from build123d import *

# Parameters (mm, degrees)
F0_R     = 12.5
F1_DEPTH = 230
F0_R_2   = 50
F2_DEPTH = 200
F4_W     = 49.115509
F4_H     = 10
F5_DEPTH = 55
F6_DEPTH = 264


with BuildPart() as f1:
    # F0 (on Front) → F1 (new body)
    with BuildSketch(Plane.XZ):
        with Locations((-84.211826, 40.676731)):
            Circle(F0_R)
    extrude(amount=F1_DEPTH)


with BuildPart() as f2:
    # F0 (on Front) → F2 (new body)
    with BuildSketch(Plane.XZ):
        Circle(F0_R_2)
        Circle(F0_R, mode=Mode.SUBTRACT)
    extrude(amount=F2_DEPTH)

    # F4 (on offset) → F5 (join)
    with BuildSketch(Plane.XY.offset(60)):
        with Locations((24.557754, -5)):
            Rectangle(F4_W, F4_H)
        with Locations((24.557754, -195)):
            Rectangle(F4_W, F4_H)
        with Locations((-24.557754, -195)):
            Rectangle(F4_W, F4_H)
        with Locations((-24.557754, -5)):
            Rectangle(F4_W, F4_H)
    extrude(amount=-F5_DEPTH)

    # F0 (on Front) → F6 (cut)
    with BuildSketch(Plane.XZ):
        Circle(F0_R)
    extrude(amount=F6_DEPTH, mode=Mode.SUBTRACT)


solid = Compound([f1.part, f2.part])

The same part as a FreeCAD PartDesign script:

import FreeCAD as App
import Part
import Sketcher
from FreeCAD import Vector


def add_polygon(sketch, points):
    """Adds a closed chain of lines whose ends are joined by coincident constraints."""
    first, n = sketch.GeometryCount, len(points)
    for a, b in zip(points, points[1:] + points[:1]):
        sketch.addGeometry(Part.LineSegment(App.Vector(*a, 0), App.Vector(*b, 0)), False)
    for i in range(n):
        sketch.addConstraint(Sketcher.Constraint("Coincident", first + i, 2, first + (i + 1) % n, 1))

doc = App.newDocument("Part")
params = doc.addObject("Spreadsheet::Sheet", "Params")
for row, (alias, value) in enumerate([
    ("sketch1_diameter", "25 mm"),
    ("pad1_length", "230 mm"),
    ("sketch2_diameter", "100 mm"),
    ("sketch2_diameter2", "25 mm"),
    ("pad2_length", "200 mm"),
    ("sketch3_height", "10 mm"),
    ("pad3_length", "55 mm"),
    ("sketch4_diameter", "25 mm"),
    ("pocket1_length", "264 mm"),
], start=1):
    params.set(f"A{row}", alias)
    params.set(f"B{row}", "=" + value)
    params.setAlias(f"B{row}", alias)

body = doc.addObject("PartDesign::Body", "Body")

# Sketch on XZ plane
sketch1 = body.newObject("Sketcher::SketchObject", "Sketch")
sketch1.AttachmentSupport = (doc.getObject("XZ_Plane"), [""])
sketch1.MapMode = "FlatFace"
sketch1.addGeometry(Part.Circle(Vector(-84.211826, 40.676731, 0), Vector(0, 0, 1), 12.5), False)
sketch1.addConstraint([
    Sketcher.Constraint("Diameter", 0, 25.0),
    Sketcher.Constraint("DistanceY", -1, 1, 0, 3, 40.676731),
    Sketcher.Constraint("DistanceX", 0, 3, -1, 1, 84.211826),
])
sketch1.setExpression("Constraints[0]", "Params.sketch1_diameter")
pad1 = body.newObject("PartDesign::Pad", "Pad")
pad1.Profile = sketch1
pad1.setExpression("Length", "Params.pad1_length")
body2 = doc.addObject("PartDesign::Body", "Body001")

# Sketch on XZ plane
sketch2 = body2.newObject("Sketcher::SketchObject", "Sketch001")
sketch2.AttachmentSupport = (doc.getObject("XZ_Plane001"), [""])
sketch2.MapMode = "FlatFace"
sketch2.addGeometry([
    Part.Circle(Vector(0, 0, 0), Vector(0, 0, 1), 50),
    Part.Circle(Vector(0, 0, 0), Vector(0, 0, 1), 12.5),
], False)
sketch2.addConstraint([
    Sketcher.Constraint("Coincident", 0, 3, -1, 1),
    Sketcher.Constraint("Coincident", 1, 3, -1, 1),
    Sketcher.Constraint("Diameter", 0, 100.0),
    Sketcher.Constraint("Diameter", 1, 25.0),
])
sketch2.setExpression("Constraints[2]", "Params.sketch2_diameter")
sketch2.setExpression("Constraints[3]", "Params.sketch2_diameter2")
pad2 = body2.newObject("PartDesign::Pad", "Pad001")
pad2.Profile = sketch2
pad2.setExpression("Length", "Params.pad2_length")

# Sketch on XY plane
sketch3 = body2.newObject("Sketcher::SketchObject", "Sketch002")
sketch3.AttachmentSupport = (doc.getObject("XY_Plane001"), [""])
sketch3.MapMode = "FlatFace"
sketch3.AttachmentOffset = App.Placement(Vector(0, 0, 60), App.Rotation())
add_polygon(sketch3, [(-49.115508, 0), (-49.115508, -10), (49.115508, -10), (49.115508, 0)])  # lines 0-3
add_polygon(sketch3, [(-49.115508, -190), (-49.115508, -200), (49.115508, -200), (49.115508, -190)])  # lines 4-7
sketch3.addConstraint([
    Sketcher.Constraint("Vertical", 0),
    Sketcher.Constraint("Horizontal", 1),
    Sketcher.Constraint("Vertical", 2),
    Sketcher.Constraint("Horizontal", 3),
    Sketcher.Constraint("Vertical", 4),
    Sketcher.Constraint("Horizontal", 5),
    Sketcher.Constraint("Vertical", 6),
    Sketcher.Constraint("Horizontal", 7),
    Sketcher.Constraint("Symmetric", 2, 2, 3, 2, -1, 1),
    Sketcher.Constraint("Vertical", 3, 2, 4, 2),
    Sketcher.Constraint("Vertical", 2, 2, 5, 2),
    Sketcher.Constraint("Equal", 2, 4),
    Sketcher.Constraint("DistanceY", 0, 2, 0, 1, 10.0),
    Sketcher.Constraint("DistanceY", 4, 2, -1, 1, 200.0),
    Sketcher.Constraint("DistanceX", 1, 1, 1, 2, 98.231017),
])
sketch3.setExpression("Constraints[20]", "Params.sketch3_height")
pad3 = body2.newObject("PartDesign::Pad", "Pad002")
pad3.Profile = sketch3
pad3.setExpression("Length", "Params.pad3_length")
pad3.Reversed = True

# Sketch on XZ plane
sketch4 = body2.newObject("Sketcher::SketchObject", "Sketch003")
sketch4.AttachmentSupport = (doc.getObject("XZ_Plane001"), [""])
sketch4.MapMode = "FlatFace"
sketch4.addGeometry(Part.Circle(Vector(0, 0, 0), Vector(0, 0, 1), 12.5), False)
sketch4.addConstraint([
    Sketcher.Constraint("Coincident", 0, 3, -1, 1),
    Sketcher.Constraint("Diameter", 0, 25.0),
])
sketch4.setExpression("Constraints[1]", "Params.sketch4_diameter")
pocket1 = body2.newObject("PartDesign::Pocket", "Pocket")
pocket1.Profile = sketch4
pocket1.setExpression("Length", "Params.pocket1_length")
pocket1.Reversed = True

doc.recompute()
